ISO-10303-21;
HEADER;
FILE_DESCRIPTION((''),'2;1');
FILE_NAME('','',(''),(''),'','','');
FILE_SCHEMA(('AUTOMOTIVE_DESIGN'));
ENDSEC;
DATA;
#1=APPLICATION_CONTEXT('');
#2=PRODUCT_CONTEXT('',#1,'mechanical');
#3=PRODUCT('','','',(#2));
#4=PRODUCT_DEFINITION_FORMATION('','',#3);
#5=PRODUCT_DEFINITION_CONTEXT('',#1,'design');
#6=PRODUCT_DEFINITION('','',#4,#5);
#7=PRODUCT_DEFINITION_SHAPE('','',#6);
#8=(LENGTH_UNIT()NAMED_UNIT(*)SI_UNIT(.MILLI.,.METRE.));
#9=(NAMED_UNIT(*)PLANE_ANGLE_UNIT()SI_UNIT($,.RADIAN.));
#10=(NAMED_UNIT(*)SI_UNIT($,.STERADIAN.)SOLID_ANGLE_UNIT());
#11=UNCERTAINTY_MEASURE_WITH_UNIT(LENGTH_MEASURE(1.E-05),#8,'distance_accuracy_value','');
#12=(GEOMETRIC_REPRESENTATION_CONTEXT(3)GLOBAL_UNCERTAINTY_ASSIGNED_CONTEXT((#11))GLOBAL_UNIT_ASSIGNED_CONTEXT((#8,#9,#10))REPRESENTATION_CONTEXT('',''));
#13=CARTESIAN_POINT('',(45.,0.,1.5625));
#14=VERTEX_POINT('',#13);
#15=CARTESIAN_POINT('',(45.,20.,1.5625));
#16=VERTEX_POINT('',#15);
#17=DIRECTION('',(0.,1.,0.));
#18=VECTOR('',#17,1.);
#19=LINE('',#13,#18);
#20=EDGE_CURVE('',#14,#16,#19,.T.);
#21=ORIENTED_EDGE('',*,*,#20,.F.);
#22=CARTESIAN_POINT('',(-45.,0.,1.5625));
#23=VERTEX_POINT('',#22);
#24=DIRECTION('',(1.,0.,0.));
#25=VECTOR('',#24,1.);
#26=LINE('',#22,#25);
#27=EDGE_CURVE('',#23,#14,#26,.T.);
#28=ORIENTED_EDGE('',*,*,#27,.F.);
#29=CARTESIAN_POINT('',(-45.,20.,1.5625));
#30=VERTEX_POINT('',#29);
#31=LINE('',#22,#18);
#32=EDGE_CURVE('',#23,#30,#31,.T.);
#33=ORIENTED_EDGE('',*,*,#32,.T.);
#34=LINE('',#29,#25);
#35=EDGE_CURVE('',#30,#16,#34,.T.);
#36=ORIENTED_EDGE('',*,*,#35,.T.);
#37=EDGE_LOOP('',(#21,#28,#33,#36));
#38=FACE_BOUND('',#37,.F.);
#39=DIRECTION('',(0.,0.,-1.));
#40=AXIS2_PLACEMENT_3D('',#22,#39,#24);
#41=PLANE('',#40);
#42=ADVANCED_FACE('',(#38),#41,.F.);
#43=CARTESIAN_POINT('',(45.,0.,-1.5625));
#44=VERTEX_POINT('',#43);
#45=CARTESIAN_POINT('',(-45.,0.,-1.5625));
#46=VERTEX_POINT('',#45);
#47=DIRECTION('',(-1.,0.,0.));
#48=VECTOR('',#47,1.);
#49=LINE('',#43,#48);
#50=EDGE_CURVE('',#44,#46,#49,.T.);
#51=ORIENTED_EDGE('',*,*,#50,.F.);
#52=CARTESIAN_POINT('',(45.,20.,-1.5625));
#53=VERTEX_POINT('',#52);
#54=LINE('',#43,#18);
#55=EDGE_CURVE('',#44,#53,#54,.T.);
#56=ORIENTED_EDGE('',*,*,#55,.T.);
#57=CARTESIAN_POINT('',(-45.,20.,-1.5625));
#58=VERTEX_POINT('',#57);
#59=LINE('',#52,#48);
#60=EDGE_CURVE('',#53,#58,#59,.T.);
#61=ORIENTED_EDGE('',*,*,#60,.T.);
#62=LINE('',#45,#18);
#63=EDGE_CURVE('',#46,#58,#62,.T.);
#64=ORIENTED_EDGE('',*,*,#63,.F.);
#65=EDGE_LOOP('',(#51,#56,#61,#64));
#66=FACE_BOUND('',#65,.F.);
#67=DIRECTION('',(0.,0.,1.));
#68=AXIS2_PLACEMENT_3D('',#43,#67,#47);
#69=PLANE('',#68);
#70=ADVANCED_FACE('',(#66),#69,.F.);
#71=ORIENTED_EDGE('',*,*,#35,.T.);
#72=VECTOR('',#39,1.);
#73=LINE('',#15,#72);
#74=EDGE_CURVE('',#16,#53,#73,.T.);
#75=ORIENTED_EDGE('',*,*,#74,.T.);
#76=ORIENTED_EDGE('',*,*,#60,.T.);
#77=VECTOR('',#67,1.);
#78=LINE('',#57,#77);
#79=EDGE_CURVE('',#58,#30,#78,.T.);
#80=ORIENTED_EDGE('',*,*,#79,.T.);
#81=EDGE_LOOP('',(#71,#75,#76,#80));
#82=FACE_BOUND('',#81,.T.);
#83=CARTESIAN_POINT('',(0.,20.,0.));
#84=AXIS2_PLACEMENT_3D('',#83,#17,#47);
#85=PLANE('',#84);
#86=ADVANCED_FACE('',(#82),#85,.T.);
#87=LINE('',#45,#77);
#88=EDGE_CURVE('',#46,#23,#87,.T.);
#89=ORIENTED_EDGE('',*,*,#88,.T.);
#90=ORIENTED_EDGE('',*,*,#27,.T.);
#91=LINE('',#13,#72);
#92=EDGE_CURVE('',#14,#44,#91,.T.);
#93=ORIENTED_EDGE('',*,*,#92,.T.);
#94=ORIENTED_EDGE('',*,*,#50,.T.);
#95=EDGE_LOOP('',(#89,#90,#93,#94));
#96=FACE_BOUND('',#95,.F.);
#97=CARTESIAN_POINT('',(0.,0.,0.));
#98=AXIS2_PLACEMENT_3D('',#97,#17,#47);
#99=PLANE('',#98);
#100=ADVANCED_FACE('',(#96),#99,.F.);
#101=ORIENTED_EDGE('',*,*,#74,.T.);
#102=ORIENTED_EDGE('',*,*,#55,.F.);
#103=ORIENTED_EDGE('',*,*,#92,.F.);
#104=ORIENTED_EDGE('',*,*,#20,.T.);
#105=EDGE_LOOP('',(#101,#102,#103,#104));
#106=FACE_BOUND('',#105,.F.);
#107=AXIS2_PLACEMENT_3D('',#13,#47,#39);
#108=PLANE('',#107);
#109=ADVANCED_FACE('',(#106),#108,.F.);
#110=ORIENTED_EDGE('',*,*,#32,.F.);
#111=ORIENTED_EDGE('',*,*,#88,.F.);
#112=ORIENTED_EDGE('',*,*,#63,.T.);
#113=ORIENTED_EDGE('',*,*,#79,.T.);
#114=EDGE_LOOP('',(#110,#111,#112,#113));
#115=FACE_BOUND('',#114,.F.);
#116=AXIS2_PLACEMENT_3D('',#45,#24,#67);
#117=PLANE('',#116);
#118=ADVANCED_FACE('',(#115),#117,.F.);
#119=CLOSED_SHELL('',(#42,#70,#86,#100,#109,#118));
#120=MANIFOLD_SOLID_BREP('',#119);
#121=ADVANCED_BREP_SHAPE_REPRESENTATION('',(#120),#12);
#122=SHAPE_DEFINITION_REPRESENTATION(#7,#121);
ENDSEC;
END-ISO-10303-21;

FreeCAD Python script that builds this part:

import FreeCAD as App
import Part
import Sketcher
from FreeCAD import Vector


def add_polygon(sketch, points):
    """Adds a closed chain of lines whose ends are joined by coincident constraints."""
    first, n = sketch.GeometryCount, len(points)
    for a, b in zip(points, points[1:] + points[:1]):
        sketch.addGeometry(Part.LineSegment(App.Vector(*a, 0), App.Vector(*b, 0)), False)
    for i in range(n):
        sketch.addConstraint(Sketcher.Constraint("Coincident", first + i, 2, first + (i + 1) % n, 1))

doc = App.newDocument("Part")
body = doc.addObject("PartDesign::Body", "Body")

# Sketch on XZ plane
sketch1 = body.newObject("Sketcher::SketchObject", "Sketch")
sketch1.AttachmentSupport = (doc.getObject("XZ_Plane"), [""])
sketch1.MapMode = "FlatFace"
add_polygon(sketch1, [(-45, -1.6), (-45, 1.6), (45, 1.6), (45, -1.6)])  # lines 0-3
sketch1.addConstraint(Sketcher.Constraint("Vertical", 0))
sketch1.addConstraint(Sketcher.Constraint("Horizontal", 1))
sketch1.addConstraint(Sketcher.Constraint("Vertical", 2))
sketch1.addConstraint(Sketcher.Constraint("Horizontal", 3))
sketch1.addConstraint(Sketcher.Constraint("Symmetric", 0, 2, 2, 2, -1, 1))
sketch1.addConstraint(Sketcher.Constraint("DistanceX", 1, 1, 1, 2, 90.0))
sketch1.addConstraint(Sketcher.Constraint("DistanceY", 0, 1, 0, 2, 3.125))
pad1 = body.newObject("PartDesign::Pad", "Pad")
pad1.Profile = sketch1
pad1.Length = 20
pad1.Reversed = True

doc.recompute()
